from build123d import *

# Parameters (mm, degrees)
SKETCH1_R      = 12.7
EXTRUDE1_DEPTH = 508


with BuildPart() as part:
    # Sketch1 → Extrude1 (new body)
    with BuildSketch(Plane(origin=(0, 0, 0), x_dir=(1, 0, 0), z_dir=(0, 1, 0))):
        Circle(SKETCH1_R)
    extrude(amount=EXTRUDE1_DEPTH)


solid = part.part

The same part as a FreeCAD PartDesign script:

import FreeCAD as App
import Part
import Sketcher

V = App.Vector
Q = App.Units.Quantity

doc = App.newDocument("Part")
params = doc.addObject("Spreadsheet::Sheet", "Params")
for row, (alias, value) in enumerate([
    ("sketch1_diameter", "1 in"),
    ("pad1_length", "20 in"),
], start=1):
    params.set(f"A{row}", alias)
    params.set(f"B{row}", "=" + value)
    params.setAlias(f"B{row}", alias)

body = doc.addObject("PartDesign::Body", "Body")

# Sketch on XZ plane
sketch1 = doc.addObject("Sketcher::SketchObject", "Sketch")
body.addObject(sketch1)
sketch1.AttachmentSupport = (doc.XZ_Plane, [""])
sketch1.MapMode = "FlatFace"
sketch1.addGeometry(Part.Circle(V(0, 0, 0), V(0, 0, 1), 12.7), False)
sketch1.addConstraint([
    Sketcher.Constraint("Coincident", 0, 3, -1, 1),
    Sketcher.Constraint("Diameter", 0, Q("1 in")),
])
sketch1.setExpression("Constraints[1]", "Params.sketch1_diameter")
pad1 = doc.addObject("PartDesign::Pad", "Pad")
body.addObject(pad1)
pad1.Profile = sketch1
pad1.setExpression("Length", "Params.pad1_length")
pad1.Reversed = True

doc.recompute()
